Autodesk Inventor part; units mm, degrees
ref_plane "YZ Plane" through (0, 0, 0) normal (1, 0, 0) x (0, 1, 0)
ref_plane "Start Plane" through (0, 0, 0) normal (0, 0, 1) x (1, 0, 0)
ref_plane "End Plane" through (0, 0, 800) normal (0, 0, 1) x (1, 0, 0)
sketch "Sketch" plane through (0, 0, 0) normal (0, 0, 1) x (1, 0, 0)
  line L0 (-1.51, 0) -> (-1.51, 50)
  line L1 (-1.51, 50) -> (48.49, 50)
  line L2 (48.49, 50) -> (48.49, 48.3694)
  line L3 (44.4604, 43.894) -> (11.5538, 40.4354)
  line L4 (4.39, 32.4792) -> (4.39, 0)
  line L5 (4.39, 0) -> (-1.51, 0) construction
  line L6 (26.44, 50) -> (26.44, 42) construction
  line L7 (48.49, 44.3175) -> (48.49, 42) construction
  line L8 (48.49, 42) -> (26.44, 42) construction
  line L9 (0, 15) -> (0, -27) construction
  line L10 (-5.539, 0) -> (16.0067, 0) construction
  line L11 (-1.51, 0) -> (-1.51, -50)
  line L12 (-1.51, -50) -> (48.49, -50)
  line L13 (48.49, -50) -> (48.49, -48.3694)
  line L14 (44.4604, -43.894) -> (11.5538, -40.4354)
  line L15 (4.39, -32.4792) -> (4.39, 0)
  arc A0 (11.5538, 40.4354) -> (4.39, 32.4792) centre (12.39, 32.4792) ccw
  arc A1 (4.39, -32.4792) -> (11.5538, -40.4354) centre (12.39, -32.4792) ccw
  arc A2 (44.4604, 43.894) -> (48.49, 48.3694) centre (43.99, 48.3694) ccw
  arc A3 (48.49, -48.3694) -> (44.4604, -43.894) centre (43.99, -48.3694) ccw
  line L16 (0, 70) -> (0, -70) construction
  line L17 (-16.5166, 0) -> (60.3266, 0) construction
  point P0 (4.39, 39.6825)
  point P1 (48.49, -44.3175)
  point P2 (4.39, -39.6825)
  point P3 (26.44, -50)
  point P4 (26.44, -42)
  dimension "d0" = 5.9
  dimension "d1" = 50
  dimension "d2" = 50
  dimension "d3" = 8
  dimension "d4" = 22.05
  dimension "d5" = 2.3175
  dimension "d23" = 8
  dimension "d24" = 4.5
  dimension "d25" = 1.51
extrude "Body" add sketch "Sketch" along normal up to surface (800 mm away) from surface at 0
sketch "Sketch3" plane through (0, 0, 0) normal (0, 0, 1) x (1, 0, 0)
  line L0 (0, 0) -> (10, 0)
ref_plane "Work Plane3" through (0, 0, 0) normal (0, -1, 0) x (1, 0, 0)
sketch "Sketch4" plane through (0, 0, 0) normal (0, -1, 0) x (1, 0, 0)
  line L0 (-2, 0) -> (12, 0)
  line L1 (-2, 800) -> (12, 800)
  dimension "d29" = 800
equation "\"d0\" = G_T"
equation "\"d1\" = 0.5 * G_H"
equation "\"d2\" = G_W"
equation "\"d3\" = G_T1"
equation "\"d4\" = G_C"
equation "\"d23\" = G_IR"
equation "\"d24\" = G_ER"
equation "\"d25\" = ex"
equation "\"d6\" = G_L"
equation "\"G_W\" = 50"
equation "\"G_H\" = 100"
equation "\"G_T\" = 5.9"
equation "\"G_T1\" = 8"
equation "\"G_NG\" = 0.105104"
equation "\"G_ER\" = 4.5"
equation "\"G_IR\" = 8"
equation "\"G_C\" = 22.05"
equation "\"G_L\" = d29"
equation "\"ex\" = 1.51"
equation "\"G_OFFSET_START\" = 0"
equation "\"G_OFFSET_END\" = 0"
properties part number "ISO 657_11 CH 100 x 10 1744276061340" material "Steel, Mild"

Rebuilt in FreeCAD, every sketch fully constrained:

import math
import FreeCAD as App
import Part
import Sketcher
from FreeCAD import Vector
Q = App.Units.Quantity

doc = App.newDocument("Part")
body = doc.addObject("PartDesign::Body", "Body")

# Sketch on XY plane
sketch1 = doc.addObject("Sketcher::SketchObject", "Sketch")
body.addObject(sketch1)
sketch1.AttachmentSupport = (doc.XY_Plane, [""])
sketch1.MapMode = "FlatFace"
sketch1.addGeometry(Part.LineSegment(Vector(-1.51, 50, 0), Vector(-1.51, -50, 0)), False)
sketch1.addGeometry(Part.LineSegment(Vector(-1.51, -50, 0), Vector(48.49, -50, 0)), False)
sketch1.addGeometry(Part.LineSegment(Vector(48.49, -50, 0), Vector(48.49, -48.3694, 0)), False)
sketch1.addGeometry(Part.ArcOfCircle(Part.Circle(Vector(43.99, -48.3694, 0), Vector(0, 0, 1), 4.5), math.radians(0), math.radians(83.999791)), False)
sketch1.addGeometry(Part.LineSegment(Vector(44.4604, -43.894, 0), Vector(11.5538, -40.4354, 0)), False)
sketch1.addGeometry(Part.ArcOfCircle(Part.Circle(Vector(12.39, -32.4792, 0), Vector(0, 0, 1), 8), math.radians(180), math.radians(264.000216)), False)
sketch1.addGeometry(Part.LineSegment(Vector(4.39, -32.4792, 0), Vector(4.39, 32.4792, 0)), False)
sketch1.addGeometry(Part.ArcOfCircle(Part.Circle(Vector(12.39, 32.4792, 0), Vector(0, 0, 1), 8.000022), math.radians(95.999784), math.radians(180)), False)
sketch1.addGeometry(Part.LineSegment(Vector(11.5538, 40.4354, 0), Vector(44.4604, 43.894, 0)), False)
sketch1.addGeometry(Part.ArcOfCircle(Part.Circle(Vector(43.99, 48.3694, 0), Vector(0, 0, 1), 4.500053), math.radians(-83.999791), math.radians(0)), False)
sketch1.addGeometry(Part.LineSegment(Vector(48.49, 48.3694, 0), Vector(48.49, 50, 0)), False)
sketch1.addGeometry(Part.LineSegment(Vector(48.49, 50, 0), Vector(-1.51, 50, 0)), False)
sketch1.addConstraint(Sketcher.Constraint("Coincident", 0, 2, 1, 1))
sketch1.addConstraint(Sketcher.Constraint("Coincident", 1, 2, 2, 1))
sketch1.addConstraint(Sketcher.Constraint("Tangent", 2, 2, 3, 1))
sketch1.addConstraint(Sketcher.Constraint("Tangent", 3, 2, 4, 1))
sketch1.addConstraint(Sketcher.Constraint("Tangent", 4, 2, 5, 2))
sketch1.addConstraint(Sketcher.Constraint("Tangent", 5, 1, 6, 1))
sketch1.addConstraint(Sketcher.Constraint("Tangent", 6, 2, 7, 2))
sketch1.addConstraint(Sketcher.Constraint("Tangent", 7, 1, 8, 1))
sketch1.addConstraint(Sketcher.Constraint("Tangent", 8, 2, 9, 1))
sketch1.addConstraint(Sketcher.Constraint("Tangent", 9, 2, 10, 1))
sketch1.addConstraint(Sketcher.Constraint("Coincident", 10, 2, 11, 1))
sketch1.addConstraint(Sketcher.Constraint("Coincident", 11, 2, 0, 1))
sketch1.addConstraint(Sketcher.Constraint("Vertical", 0))
sketch1.addConstraint(Sketcher.Constraint("Horizontal", 1))
sketch1.addConstraint(Sketcher.Constraint("Vertical", 2))
sketch1.addConstraint(Sketcher.Constraint("Vertical", 6))
sketch1.addConstraint(Sketcher.Constraint("Vertical", 10))
sketch1.addConstraint(Sketcher.Constraint("Horizontal", 11))
sketch1.addConstraint(Sketcher.Constraint("Equal", 5, 7))
sketch1.addConstraint(Sketcher.Constraint("Equal", 3, 9))
sketch1.addConstraint(Sketcher.Constraint("Symmetric", 3, 3, 9, 3, -1))
sketch1.addConstraint(Sketcher.Constraint("Vertical", 4, 2, 7, 1))
sketch1.addConstraint(Sketcher.Constraint("Equal", 2, 10))
sketch1.addConstraint(Sketcher.Constraint("Radius", 5, 8.0))
sketch1.addConstraint(Sketcher.Constraint("Radius", 3, 4.5))
sketch1.addConstraint(Sketcher.Constraint("DistanceX", 1, 1, 1, 2, 50.0))
sketch1.addConstraint(Sketcher.Constraint("DistanceY", 0, 2, -1, 1, 50.0))
sketch1.addConstraint(Sketcher.Constraint("DistanceX", 0, 2, 5, 1, 5.9))
sketch1.addConstraint(Sketcher.Constraint("DistanceX", 0, 2, -1, 1, 1.51))
sketch1.addConstraint(Sketcher.Constraint("Angle", 4, Q("174 deg")))
sketch1.addConstraint(Sketcher.Constraint("DistanceY", 2, 1, 2, 2, 1.6306))
pad1 = doc.addObject("PartDesign::Pad", "Pad")
body.addObject(pad1)
pad1.Profile = sketch1
pad1.Length = 800

doc.recompute()
